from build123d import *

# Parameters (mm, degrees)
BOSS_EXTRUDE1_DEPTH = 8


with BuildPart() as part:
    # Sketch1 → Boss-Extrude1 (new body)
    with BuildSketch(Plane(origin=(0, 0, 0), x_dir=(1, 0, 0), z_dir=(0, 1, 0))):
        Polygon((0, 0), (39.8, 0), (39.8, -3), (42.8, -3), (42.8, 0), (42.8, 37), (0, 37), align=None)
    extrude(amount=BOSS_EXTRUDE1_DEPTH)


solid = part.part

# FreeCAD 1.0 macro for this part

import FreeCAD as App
import Part
import Sketcher

V = App.Vector

doc = App.newDocument("Part")
params = doc.addObject("Spreadsheet::Sheet", "Params")
for row, (alias, value) in enumerate([
    ("sketch1_width", "3 mm"),
    ("sketch1_height", "40 mm"),
    ("sketch1_width2", "39.8 mm"),
    ("pad1_length", "8 mm"),
], start=1):
    params.set(f"A{row}", alias)
    params.set(f"B{row}", "=" + value)
    params.setAlias(f"B{row}", alias)

body = doc.addObject("PartDesign::Body", "Body")

# Sketch on XZ plane
sketch1 = body.newObject("Sketcher::SketchObject", "Sketch")
sketch1.AttachmentSupport = (doc.getObject("XZ_Plane"), [""])
sketch1.MapMode = "FlatFace"
sketch1.addGeometry([
    Part.LineSegment(V(0, 0, 0), V(39.8, 0, 0)),  # 0
    Part.LineSegment(V(39.8, 0, 0), V(39.8, 3, 0)),  # 1
    Part.LineSegment(V(39.8, 3, 0), V(42.8, 3, 0)),  # 2
    Part.LineSegment(V(42.8, 3, 0), V(42.8, -37, 0)),  # 3
    Part.LineSegment(V(42.8, -37, 0), V(0, -37, 0)),  # 4
    Part.LineSegment(V(0, -37, 0), V(0, 0, 0)),  # 5
], False)
sketch1.addConstraint([
    Sketcher.Constraint("Coincident", 0, 2, 1, 1),
    Sketcher.Constraint("Coincident", 1, 2, 2, 1),
    Sketcher.Constraint("Coincident", 2, 2, 3, 1),
    Sketcher.Constraint("Coincident", 3, 2, 4, 1),
    Sketcher.Constraint("Coincident", 4, 2, 5, 1),
    Sketcher.Constraint("Coincident", 5, 2, 0, 1),
    Sketcher.Constraint("Horizontal", 0),
    Sketcher.Constraint("Vertical", 1),
    Sketcher.Constraint("Horizontal", 2),
    Sketcher.Constraint("Vertical", 3),
    Sketcher.Constraint("Horizontal", 4),
    Sketcher.Constraint("Vertical", 5),
    Sketcher.Constraint("Coincident", 5, 2, -1, 1),
    Sketcher.Constraint("Equal", 2, 1),
    Sketcher.Constraint("DistanceX", 2, 1, 2, 2, 3.0),
    Sketcher.Constraint("DistanceY", 3, 2, 3, 1, 40.0),
    Sketcher.Constraint("DistanceX", 0, 1, 0, 2, 39.8),
])
sketch1.setExpression("Constraints[14]", "Params.sketch1_width")
sketch1.setExpression("Constraints[15]", "Params.sketch1_height")
sketch1.setExpression("Constraints[16]", "Params.sketch1_width2")
pad1 = body.newObject("PartDesign::Pad", "Pad")
pad1.Profile = sketch1
pad1.setExpression("Length", "Params.pad1_length")
pad1.Reversed = True

doc.recompute()
